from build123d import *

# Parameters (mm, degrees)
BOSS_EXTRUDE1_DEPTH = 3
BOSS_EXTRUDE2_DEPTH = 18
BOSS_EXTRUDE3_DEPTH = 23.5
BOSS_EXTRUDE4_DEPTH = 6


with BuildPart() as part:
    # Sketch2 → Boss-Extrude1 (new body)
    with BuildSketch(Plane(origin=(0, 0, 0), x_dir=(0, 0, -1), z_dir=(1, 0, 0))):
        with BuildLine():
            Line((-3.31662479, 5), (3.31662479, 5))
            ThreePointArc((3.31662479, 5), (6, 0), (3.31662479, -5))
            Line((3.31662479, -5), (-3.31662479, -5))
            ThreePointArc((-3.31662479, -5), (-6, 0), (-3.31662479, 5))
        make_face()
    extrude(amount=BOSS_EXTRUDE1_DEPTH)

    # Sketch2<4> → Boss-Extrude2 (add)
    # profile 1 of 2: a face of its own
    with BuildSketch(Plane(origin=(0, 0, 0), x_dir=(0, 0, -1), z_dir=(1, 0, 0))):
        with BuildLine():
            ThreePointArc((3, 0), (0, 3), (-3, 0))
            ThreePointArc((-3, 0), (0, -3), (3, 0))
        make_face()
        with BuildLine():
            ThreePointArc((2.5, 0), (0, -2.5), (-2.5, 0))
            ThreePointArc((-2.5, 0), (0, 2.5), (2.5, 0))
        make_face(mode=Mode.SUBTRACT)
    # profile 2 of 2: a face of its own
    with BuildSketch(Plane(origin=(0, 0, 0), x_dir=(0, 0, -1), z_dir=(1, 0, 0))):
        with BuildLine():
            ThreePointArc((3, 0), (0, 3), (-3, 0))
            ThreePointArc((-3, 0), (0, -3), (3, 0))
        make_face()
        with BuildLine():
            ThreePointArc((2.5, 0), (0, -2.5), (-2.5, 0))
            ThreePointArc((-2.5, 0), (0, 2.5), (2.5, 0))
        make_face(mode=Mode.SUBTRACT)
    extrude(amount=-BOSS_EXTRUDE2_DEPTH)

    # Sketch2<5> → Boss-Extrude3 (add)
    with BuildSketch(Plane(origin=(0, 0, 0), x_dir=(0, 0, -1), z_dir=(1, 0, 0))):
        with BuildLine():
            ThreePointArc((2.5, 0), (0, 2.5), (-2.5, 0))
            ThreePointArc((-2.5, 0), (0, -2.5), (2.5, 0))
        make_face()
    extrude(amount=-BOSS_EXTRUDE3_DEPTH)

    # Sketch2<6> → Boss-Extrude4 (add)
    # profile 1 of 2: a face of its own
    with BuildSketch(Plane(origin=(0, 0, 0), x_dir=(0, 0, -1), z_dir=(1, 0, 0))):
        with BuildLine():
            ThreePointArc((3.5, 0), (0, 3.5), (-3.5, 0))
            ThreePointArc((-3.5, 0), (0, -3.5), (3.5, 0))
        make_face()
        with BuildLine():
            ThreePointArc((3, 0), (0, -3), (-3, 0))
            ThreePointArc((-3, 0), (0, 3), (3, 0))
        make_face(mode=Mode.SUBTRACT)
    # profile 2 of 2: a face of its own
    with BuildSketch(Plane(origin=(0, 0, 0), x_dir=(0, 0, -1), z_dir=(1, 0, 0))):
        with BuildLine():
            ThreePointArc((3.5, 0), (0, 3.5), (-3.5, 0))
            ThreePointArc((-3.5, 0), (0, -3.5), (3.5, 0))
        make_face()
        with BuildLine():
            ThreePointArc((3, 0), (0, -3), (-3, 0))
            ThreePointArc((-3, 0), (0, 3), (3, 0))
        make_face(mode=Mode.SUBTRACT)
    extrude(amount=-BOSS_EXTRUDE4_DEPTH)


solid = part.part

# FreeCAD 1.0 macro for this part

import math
import FreeCAD as App
import Part
import Sketcher
from FreeCAD import Vector

doc = App.newDocument("Part")
body = doc.addObject("PartDesign::Body", "Body")

sketch1 = body.newObject("Sketcher::SketchObject", "Sketch")
sketch1.AttachmentSupport = (doc.getObject("YZ_Plane"), [""])
sketch1.MapMode = "FlatFace"
sketch1.addGeometry([
    Part.LineSegment(Vector(5, -3, 0), Vector(5, 3, 0)),
    Part.ArcOfCircle(Part.Circle(Vector(0, 0, 0), Vector(0, 0, 1), 6), math.radians(34), math.radians(146)),
    Part.LineSegment(Vector(-5, 3, 0), Vector(-5, -3, 0)),
    Part.ArcOfCircle(Part.Circle(Vector(0, 0, 0), Vector(0, 0, 1), 6), math.radians(-146), math.radians(-34)),
], False)
sketch1.addConstraint([
    Sketcher.Constraint("Coincident", 0, 2, 1, 1),
    Sketcher.Constraint("Coincident", 1, 2, 2, 1),
    Sketcher.Constraint("Coincident", 2, 2, 3, 1),
    Sketcher.Constraint("Coincident", 3, 2, 0, 1),
    Sketcher.Constraint("Vertical", 0),
    Sketcher.Constraint("Vertical", 2),
    Sketcher.Constraint("Coincident", 1, 3, -1, 1),
    Sketcher.Constraint("Coincident", 3, 3, -1, 1),
    Sketcher.Constraint("Equal", 1, 3),
    Sketcher.Constraint("Horizontal", 0, 2, 1, 2),
    Sketcher.Constraint("Radius", 1, 6.0),
    Sketcher.Constraint("DistanceX", -1, 1, 0, 2, 5.0),
])
pad1 = body.newObject("PartDesign::Pad", "Pad")
pad1.Profile = sketch1
pad1.Length = 3

sketch2 = body.newObject("Sketcher::SketchObject", "Sketch001")
sketch2.AttachmentSupport = (doc.getObject("YZ_Plane"), [""])
sketch2.MapMode = "FlatFace"
sketch2.addGeometry([
    Part.Circle(Vector(0, 0, 0), Vector(0, 0, 1), 3),
    Part.Circle(Vector(0, 0, 0), Vector(0, 0, 1), 2.5),
], False)
sketch2.addConstraint([
    Sketcher.Constraint("Coincident", 0, 3, -1, 1),
    Sketcher.Constraint("Coincident", 1, 3, -1, 1),
    Sketcher.Constraint("Diameter", 0, 6.0),
    Sketcher.Constraint("Diameter", 1, 5.0),
])
pad2 = body.newObject("PartDesign::Pad", "Pad001")
pad2.Profile = sketch2
pad2.Length = 18
pad2.Reversed = True

sketch3 = body.newObject("Sketcher::SketchObject", "Sketch002")
sketch3.AttachmentSupport = (doc.getObject("YZ_Plane"), [""])
sketch3.MapMode = "FlatFace"
sketch3.addGeometry(Part.Circle(Vector(0, 0, 0), Vector(0, 0, 1), 2.5), False)
sketch3.addConstraint([
    Sketcher.Constraint("Coincident", 0, 3, -1, 1),
    Sketcher.Constraint("Diameter", 0, 5.0),
])
pad3 = body.newObject("PartDesign::Pad", "Pad002")
pad3.Profile = sketch3
pad3.Length = 23.5
pad3.Reversed = True

sketch4 = body.newObject("Sketcher::SketchObject", "Sketch003")
sketch4.AttachmentSupport = (doc.getObject("YZ_Plane"), [""])
sketch4.MapMode = "FlatFace"
sketch4.addGeometry([
    Part.Circle(Vector(0, 0, 0), Vector(0, 0, 1), 3.5),
    Part.Circle(Vector(0, 0, 0), Vector(0, 0, 1), 3),
], False)
sketch4.addConstraint([
    Sketcher.Constraint("Coincident", 0, 3, -1, 1),
    Sketcher.Constraint("Coincident", 1, 3, -1, 1),
    Sketcher.Constraint("Diameter", 0, 7.0),
    Sketcher.Constraint("Diameter", 1, 6.0),
])
pad4 = body.newObject("PartDesign::Pad", "Pad003")
pad4.Profile = sketch4
pad4.Length = 6
pad4.Reversed = True

doc.recompute()
